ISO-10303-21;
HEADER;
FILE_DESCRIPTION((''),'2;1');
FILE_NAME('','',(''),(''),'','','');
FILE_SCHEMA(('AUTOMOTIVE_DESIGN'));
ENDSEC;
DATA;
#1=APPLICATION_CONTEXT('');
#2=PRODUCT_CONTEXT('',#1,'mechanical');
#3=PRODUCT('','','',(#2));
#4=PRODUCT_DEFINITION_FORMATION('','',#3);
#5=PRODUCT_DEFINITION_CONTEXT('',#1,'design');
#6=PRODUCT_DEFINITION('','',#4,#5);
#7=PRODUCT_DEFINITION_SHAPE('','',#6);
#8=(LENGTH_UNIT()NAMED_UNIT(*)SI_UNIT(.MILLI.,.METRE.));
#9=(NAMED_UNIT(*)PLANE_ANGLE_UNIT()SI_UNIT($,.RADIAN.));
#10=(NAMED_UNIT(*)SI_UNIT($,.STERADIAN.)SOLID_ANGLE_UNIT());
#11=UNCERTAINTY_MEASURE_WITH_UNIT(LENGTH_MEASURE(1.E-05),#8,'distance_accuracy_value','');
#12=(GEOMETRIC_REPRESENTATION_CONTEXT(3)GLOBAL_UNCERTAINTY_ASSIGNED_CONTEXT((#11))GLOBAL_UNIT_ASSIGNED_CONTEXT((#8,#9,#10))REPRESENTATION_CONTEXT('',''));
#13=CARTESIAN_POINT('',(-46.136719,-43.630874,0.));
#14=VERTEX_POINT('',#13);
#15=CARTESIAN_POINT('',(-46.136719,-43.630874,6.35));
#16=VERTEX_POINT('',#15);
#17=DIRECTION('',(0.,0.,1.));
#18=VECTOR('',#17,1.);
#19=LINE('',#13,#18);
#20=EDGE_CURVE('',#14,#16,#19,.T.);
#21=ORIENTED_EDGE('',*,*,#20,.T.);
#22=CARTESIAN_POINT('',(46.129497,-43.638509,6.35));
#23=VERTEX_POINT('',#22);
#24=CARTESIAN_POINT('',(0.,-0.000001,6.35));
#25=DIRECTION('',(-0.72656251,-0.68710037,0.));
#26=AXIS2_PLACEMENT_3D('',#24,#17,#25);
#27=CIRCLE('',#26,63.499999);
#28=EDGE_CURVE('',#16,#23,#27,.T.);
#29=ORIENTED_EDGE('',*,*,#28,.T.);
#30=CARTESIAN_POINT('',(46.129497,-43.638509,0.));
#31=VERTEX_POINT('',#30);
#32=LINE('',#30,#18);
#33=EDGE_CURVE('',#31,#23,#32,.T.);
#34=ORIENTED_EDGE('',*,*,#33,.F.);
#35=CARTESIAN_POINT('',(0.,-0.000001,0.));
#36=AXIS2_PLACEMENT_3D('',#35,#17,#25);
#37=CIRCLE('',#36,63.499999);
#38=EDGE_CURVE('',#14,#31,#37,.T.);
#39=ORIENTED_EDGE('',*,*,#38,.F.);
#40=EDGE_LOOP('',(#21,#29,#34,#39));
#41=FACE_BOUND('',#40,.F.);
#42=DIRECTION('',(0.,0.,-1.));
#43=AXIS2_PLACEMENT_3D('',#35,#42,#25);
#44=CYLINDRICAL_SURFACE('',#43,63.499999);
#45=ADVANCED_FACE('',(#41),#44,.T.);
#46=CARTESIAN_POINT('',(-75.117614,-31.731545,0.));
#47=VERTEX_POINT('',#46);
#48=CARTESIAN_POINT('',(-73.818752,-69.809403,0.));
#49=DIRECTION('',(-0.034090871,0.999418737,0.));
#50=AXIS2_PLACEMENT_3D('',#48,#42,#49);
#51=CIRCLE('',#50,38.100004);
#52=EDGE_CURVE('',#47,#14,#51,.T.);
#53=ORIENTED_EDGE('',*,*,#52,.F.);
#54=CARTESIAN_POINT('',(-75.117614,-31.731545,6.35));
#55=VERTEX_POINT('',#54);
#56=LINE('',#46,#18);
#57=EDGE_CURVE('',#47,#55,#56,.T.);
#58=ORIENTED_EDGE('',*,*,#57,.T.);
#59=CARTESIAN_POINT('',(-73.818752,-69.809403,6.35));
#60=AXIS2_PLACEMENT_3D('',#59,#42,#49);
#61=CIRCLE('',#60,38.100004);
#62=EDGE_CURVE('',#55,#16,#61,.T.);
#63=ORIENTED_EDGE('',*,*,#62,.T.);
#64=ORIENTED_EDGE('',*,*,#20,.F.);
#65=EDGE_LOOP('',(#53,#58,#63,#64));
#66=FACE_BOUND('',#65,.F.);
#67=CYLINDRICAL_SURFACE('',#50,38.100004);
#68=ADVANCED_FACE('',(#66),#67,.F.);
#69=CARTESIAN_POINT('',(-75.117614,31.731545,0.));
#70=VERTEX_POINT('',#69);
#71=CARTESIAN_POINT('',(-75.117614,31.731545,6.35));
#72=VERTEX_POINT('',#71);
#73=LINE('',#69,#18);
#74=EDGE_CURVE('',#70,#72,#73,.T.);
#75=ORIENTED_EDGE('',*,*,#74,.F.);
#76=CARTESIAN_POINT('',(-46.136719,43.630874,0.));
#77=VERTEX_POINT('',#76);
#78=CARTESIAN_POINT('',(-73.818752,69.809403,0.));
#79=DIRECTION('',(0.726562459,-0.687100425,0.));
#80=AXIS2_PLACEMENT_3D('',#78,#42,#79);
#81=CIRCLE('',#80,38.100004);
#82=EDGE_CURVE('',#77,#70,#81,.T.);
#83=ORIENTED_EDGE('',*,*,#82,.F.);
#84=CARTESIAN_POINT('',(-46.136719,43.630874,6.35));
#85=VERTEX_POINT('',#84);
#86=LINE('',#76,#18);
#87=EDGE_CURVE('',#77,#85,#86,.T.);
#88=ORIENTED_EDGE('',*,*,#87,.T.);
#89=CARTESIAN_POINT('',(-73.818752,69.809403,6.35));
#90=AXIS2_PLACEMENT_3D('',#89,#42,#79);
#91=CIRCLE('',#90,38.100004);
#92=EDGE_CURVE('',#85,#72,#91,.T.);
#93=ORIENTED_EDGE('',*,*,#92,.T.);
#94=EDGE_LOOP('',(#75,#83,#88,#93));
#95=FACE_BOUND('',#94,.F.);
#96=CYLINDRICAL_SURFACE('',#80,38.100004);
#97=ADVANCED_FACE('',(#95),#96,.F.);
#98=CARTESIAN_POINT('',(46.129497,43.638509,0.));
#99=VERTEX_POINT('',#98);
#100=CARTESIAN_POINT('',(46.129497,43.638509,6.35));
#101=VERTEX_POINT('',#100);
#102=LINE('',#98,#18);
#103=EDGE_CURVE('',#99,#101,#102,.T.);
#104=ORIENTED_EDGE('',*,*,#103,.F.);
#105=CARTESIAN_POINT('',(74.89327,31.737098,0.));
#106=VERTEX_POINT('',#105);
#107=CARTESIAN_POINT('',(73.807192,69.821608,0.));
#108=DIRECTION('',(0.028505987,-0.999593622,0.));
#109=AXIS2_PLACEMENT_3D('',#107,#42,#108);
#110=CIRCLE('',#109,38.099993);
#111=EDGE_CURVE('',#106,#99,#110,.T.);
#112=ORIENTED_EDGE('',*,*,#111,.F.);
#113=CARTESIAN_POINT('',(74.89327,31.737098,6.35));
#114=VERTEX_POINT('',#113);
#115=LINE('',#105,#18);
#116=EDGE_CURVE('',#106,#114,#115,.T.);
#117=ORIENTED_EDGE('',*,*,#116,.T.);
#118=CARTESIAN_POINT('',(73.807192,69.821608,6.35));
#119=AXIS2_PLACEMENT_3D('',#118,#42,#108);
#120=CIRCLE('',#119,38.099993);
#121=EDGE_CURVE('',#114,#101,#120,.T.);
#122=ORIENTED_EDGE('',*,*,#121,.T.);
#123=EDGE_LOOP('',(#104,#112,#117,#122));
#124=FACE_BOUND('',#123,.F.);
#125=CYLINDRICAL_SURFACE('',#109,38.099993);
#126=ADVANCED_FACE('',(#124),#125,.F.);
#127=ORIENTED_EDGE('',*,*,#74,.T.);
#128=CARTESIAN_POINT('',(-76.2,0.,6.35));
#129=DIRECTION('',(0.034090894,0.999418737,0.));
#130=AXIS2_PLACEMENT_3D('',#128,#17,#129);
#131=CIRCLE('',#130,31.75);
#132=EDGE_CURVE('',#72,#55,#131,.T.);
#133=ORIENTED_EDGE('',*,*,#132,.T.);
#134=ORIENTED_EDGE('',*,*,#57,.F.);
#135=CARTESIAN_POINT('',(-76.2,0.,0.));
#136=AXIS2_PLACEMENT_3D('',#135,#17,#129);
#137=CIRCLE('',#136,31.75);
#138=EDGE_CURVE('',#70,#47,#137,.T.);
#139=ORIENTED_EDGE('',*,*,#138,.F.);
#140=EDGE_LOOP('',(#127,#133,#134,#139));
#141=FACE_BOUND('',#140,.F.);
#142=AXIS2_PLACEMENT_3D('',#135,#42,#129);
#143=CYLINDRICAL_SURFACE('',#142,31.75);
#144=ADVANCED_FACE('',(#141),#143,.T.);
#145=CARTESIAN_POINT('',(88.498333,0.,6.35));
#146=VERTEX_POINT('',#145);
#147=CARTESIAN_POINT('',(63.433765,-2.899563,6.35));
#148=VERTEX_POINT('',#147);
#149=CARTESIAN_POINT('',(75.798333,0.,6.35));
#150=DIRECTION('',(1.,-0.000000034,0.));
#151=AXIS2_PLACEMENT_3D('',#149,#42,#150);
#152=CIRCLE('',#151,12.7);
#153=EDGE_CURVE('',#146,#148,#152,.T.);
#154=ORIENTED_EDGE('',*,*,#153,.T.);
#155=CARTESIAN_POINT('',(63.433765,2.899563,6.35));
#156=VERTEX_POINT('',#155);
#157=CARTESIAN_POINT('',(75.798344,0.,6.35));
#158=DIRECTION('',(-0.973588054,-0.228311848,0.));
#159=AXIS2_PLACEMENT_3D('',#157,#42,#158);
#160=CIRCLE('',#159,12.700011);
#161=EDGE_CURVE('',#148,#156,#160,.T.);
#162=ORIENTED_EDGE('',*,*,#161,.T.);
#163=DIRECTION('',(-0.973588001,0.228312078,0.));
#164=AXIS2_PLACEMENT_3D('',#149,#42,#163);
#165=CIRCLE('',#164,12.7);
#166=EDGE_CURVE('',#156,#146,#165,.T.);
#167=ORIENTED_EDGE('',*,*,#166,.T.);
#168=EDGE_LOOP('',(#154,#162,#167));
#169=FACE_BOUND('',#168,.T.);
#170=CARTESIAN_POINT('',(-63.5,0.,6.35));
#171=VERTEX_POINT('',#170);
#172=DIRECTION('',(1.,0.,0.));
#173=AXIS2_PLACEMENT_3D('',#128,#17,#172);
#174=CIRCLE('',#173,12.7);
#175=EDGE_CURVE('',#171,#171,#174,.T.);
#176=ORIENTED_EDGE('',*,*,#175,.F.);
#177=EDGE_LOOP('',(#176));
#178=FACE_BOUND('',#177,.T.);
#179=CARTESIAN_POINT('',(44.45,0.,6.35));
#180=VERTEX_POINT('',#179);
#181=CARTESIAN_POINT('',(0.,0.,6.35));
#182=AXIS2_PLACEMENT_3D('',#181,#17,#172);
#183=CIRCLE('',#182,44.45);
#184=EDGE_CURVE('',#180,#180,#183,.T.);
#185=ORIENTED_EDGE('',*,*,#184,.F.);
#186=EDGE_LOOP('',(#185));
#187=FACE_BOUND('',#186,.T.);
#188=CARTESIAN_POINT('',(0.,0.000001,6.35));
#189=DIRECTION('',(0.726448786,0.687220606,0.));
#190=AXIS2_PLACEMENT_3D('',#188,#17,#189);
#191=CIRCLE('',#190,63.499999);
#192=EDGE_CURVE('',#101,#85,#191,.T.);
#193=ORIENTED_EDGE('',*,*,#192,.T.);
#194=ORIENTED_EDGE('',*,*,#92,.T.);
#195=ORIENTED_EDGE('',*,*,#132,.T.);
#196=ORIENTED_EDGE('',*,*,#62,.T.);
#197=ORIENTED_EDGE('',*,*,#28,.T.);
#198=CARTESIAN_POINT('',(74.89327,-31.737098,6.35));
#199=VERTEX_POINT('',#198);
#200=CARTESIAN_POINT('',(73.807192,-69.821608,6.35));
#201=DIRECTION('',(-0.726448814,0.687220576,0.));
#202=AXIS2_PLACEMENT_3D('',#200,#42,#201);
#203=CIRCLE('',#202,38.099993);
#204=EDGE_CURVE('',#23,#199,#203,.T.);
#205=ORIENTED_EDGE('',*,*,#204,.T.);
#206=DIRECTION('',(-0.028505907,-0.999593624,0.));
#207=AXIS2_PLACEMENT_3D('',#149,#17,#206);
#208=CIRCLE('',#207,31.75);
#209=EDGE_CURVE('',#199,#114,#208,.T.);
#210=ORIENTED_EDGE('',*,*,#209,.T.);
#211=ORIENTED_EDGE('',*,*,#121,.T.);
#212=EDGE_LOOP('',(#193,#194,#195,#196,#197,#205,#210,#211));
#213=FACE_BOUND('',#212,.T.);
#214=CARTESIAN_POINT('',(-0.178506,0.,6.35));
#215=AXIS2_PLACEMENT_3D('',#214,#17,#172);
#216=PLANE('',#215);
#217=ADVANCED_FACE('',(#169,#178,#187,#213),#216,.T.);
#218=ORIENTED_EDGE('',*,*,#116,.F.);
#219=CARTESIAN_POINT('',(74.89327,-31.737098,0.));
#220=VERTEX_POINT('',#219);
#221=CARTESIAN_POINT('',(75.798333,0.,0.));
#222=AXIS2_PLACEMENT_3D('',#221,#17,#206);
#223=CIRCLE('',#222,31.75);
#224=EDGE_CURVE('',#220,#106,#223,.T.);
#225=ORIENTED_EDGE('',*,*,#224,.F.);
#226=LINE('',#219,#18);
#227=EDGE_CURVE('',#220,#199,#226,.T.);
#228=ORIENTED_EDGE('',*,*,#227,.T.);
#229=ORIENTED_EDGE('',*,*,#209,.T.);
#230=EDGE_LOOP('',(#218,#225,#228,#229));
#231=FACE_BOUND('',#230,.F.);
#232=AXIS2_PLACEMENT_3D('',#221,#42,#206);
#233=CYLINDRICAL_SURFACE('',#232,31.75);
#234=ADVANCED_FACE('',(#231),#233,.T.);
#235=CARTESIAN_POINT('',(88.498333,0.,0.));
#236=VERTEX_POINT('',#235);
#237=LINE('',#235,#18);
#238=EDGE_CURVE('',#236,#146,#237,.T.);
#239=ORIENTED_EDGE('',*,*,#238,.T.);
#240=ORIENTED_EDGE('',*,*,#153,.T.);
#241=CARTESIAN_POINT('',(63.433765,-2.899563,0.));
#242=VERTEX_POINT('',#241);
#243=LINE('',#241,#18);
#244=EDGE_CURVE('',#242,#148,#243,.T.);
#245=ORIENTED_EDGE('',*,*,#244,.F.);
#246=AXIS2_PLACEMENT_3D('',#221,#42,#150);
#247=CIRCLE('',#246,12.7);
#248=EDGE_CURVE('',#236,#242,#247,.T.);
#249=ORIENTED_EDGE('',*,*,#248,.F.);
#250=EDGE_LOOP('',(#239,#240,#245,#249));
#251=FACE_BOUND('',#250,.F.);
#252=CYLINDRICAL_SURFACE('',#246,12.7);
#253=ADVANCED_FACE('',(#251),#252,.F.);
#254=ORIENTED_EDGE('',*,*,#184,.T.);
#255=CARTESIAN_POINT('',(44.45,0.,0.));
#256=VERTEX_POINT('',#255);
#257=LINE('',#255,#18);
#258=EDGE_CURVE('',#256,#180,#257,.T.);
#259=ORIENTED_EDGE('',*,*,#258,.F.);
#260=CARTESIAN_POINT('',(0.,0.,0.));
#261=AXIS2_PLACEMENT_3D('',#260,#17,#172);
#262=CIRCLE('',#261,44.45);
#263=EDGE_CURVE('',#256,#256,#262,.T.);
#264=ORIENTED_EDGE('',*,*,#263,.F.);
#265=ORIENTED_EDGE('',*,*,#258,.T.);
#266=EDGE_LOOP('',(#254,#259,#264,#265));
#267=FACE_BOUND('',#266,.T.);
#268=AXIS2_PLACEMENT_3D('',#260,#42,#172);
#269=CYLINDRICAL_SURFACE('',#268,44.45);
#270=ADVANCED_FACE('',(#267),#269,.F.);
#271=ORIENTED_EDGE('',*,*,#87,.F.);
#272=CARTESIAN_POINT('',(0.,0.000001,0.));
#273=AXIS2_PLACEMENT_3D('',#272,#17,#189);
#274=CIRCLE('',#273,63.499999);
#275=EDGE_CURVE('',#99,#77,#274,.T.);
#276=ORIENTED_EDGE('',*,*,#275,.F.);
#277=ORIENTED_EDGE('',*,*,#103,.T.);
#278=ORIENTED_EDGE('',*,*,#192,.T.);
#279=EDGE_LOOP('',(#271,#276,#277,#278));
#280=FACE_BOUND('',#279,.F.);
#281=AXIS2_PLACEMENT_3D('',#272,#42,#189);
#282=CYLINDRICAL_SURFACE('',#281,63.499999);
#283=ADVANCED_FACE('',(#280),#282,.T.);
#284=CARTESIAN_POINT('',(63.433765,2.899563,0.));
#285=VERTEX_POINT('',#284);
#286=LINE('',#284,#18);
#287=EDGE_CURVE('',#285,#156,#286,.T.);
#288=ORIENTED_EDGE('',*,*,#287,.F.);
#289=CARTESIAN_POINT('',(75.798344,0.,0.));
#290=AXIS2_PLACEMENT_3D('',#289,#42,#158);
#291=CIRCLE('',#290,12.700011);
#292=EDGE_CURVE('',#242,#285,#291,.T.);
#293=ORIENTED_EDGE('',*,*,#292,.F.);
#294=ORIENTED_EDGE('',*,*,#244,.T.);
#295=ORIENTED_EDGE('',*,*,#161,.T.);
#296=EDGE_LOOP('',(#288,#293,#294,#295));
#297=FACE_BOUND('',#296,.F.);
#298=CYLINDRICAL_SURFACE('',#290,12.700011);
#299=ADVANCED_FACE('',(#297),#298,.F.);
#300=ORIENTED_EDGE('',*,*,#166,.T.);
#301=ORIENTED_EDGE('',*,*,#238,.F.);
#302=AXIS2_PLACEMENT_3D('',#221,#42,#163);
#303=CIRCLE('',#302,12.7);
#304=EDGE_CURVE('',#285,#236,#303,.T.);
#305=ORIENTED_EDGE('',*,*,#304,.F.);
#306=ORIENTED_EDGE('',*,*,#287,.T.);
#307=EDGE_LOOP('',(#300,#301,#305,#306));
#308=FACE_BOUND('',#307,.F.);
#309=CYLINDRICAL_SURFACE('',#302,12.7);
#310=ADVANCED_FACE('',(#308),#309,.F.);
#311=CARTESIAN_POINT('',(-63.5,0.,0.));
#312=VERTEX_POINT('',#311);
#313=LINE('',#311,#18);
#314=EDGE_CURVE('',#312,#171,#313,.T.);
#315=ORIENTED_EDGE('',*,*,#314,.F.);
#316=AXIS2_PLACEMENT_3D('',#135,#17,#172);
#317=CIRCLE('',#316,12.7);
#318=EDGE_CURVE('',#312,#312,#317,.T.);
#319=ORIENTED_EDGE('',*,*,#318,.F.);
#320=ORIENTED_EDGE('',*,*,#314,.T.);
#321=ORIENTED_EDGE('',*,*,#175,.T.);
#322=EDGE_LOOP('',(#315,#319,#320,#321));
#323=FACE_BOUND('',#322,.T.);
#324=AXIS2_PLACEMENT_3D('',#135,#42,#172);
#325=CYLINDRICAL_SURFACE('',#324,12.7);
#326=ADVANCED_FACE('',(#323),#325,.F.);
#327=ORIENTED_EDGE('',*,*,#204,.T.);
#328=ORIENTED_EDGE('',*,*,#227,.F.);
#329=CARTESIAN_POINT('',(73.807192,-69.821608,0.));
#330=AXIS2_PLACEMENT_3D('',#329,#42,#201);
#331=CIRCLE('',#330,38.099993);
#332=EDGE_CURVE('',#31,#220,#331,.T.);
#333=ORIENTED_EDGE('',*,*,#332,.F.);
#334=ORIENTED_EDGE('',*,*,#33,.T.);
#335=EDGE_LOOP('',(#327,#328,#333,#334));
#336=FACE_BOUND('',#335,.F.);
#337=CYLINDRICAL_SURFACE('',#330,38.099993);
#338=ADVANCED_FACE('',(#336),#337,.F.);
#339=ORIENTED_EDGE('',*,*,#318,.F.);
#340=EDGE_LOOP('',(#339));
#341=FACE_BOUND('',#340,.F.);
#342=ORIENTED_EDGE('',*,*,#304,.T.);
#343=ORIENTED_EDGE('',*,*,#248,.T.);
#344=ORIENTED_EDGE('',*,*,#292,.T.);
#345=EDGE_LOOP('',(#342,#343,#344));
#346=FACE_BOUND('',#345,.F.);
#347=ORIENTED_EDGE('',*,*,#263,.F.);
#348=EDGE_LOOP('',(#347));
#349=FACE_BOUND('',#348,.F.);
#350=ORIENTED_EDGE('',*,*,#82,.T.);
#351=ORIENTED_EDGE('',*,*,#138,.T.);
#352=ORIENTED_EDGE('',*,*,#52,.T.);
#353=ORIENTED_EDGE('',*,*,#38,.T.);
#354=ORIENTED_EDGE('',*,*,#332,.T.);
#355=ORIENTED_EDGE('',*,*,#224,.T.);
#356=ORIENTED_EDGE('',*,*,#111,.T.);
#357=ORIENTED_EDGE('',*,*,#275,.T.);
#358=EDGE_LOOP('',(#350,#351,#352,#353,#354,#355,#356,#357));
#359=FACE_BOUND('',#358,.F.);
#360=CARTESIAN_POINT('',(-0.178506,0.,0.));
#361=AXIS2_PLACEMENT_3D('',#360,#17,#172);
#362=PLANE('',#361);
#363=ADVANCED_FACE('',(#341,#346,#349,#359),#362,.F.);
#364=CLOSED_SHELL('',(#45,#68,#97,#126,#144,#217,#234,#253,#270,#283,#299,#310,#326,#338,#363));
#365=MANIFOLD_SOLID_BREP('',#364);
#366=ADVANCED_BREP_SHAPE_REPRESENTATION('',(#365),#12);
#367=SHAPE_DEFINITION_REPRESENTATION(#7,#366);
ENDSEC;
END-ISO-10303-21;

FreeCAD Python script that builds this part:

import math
import FreeCAD as App
import Part
import Sketcher
from FreeCAD import Vector
Q = App.Units.Quantity

doc = App.newDocument("Part")
body = doc.addObject("PartDesign::Body", "Body")

# Sketch on XY plane
sketch1 = body.newObject("Sketcher::SketchObject", "Sketch")
sketch1.AttachmentSupport = (doc.getObject("XY_Plane"), [""])
sketch1.MapMode = "FlatFace"
sketch1.addGeometry(Part.ArcOfCircle(Part.Circle(Vector(-73.818752, -69.809403, 0), Vector(0, 0, 1), 38.100004), math.radians(43.401018), math.radians(91.953642)), False)
sketch1.addGeometry(Part.ArcOfCircle(Part.Circle(Vector(0, -0.000001, 0), Vector(0, 0, 1), 63.499999), math.radians(-136.598986), math.radians(-43.410496)), False)
sketch1.addGeometry(Part.ArcOfCircle(Part.Circle(Vector(73.807192, -69.821608, 0), Vector(0, 0, 1), 38.099993), math.radians(88.366506), math.radians(136.589506)), False)
sketch1.addGeometry(Part.ArcOfCircle(Part.Circle(Vector(75.798333, 0, 0), Vector(0, 0, 1), 31.75), math.radians(-91.633489), math.radians(91.633489)), False)
sketch1.addGeometry(Part.ArcOfCircle(Part.Circle(Vector(73.807192, 69.821608, 0), Vector(0, 0, 1), 38.099993), math.radians(-136.589506), math.radians(-88.366506)), False)
sketch1.addGeometry(Part.ArcOfCircle(Part.Circle(Vector(0, 0.000001, 0), Vector(0, 0, 1), 63.499999), math.radians(43.410496), math.radians(136.598986)), False)
sketch1.addGeometry(Part.ArcOfCircle(Part.Circle(Vector(-73.818752, 69.809403, 0), Vector(0, 0, 1), 38.100004), math.radians(-91.953642), math.radians(-43.401018)), False)
sketch1.addGeometry(Part.ArcOfCircle(Part.Circle(Vector(-76.2, 0, 0), Vector(0, 0, 1), 31.75), math.radians(88.046357), math.radians(271.953643)), False)
sketch1.addGeometry(Part.Circle(Vector(-76.2, 0, 0), Vector(0, 0, 1), 12.7), False)
sketch1.addGeometry(Part.Circle(Vector(0, 0, 0), Vector(0, 0, 1), 44.45), False)
sketch1.addGeometry(Part.ArcOfCircle(Part.Circle(Vector(75.798344, 0, 0), Vector(0, 0, 1), 12.700011), math.radians(166.802296), math.radians(193.197704)), False)
sketch1.addGeometry(Part.ArcOfCircle(Part.Circle(Vector(75.798333, 0, 0), Vector(0, 0, 1), 12.7), math.radians(0.000002), math.radians(166.802283)), False)
sketch1.addGeometry(Part.ArcOfCircle(Part.Circle(Vector(75.798333, 0, 0), Vector(0, 0, 1), 12.7), math.radians(-166.802283), math.radians(-0.000002)), False)
sketch1.addConstraint(Sketcher.Constraint("Coincident", 0, 1, 1, 1))
sketch1.addConstraint(Sketcher.Constraint("Coincident", 1, 2, 2, 2))
sketch1.addConstraint(Sketcher.Constraint("Coincident", 2, 1, 3, 1))
sketch1.addConstraint(Sketcher.Constraint("Coincident", 3, 2, 4, 2))
sketch1.addConstraint(Sketcher.Constraint("Coincident", 4, 1, 5, 1))
sketch1.addConstraint(Sketcher.Constraint("Coincident", 5, 2, 6, 2))
sketch1.addConstraint(Sketcher.Constraint("Coincident", 6, 1, 7, 1))
sketch1.addConstraint(Sketcher.Constraint("Coincident", 7, 2, 0, 2))
sketch1.addConstraint(Sketcher.Constraint("Coincident", 10, 1, 11, 2))
sketch1.addConstraint(Sketcher.Constraint("Coincident", 11, 1, 12, 2))
sketch1.addConstraint(Sketcher.Constraint("Coincident", 12, 1, 10, 2))
sketch1.addConstraint(Sketcher.Constraint("Coincident", 1, 3, -1, 1))
sketch1.addConstraint(Sketcher.Constraint("Coincident", 5, 3, -1, 1))
sketch1.addConstraint(Sketcher.Constraint("Coincident", 9, 3, -1, 1))
sketch1.addConstraint(Sketcher.Constraint("Coincident", 8, 3, 7, 3))
sketch1.addConstraint(Sketcher.Constraint("Coincident", 11, 3, 3, 3))
sketch1.addConstraint(Sketcher.Constraint("Coincident", 12, 3, 3, 3))
sketch1.addConstraint(Sketcher.Constraint("PointOnObject", 3, 3, -1))
sketch1.addConstraint(Sketcher.Constraint("PointOnObject", 7, 3, -1))
sketch1.addConstraint(Sketcher.Constraint("PointOnObject", 11, 1, -1))
sketch1.addConstraint(Sketcher.Constraint("Diameter", 8, Q("1 in")))
sketch1.addConstraint(Sketcher.Constraint("Diameter", 9, Q("3.5 in")))
sketch1.addConstraint(Sketcher.Constraint("Radius", 0, Q("1.5000002 in")))
sketch1.addConstraint(Sketcher.Constraint("Radius", 1, Q("2.5 in")))
sketch1.addConstraint(Sketcher.Constraint("Radius", 5, Q("2.5 in")))
sketch1.addConstraint(Sketcher.Constraint("Radius", 6, Q("1.5000002 in")))
sketch1.addConstraint(Sketcher.Constraint("Radius", 11, Q("0.5 in")))
sketch1.addConstraint(Sketcher.Constraint("Radius", 3, Q("1.25 in")))
sketch1.addConstraint(Sketcher.Constraint("Radius", 7, Q("1.25 in")))
sketch1.addConstraint(Sketcher.Constraint("DistanceX", 7, 3, -1, 1, Q("3 in")))
sketch1.addConstraint(Sketcher.Constraint("Radius", 10, 12.700011))
sketch1.addConstraint(Sketcher.Constraint("Radius", 2, 38.099993))
sketch1.addConstraint(Sketcher.Constraint("Radius", 4, 38.099993))
sketch1.addConstraint(Sketcher.Constraint("DistanceY", 2, 1, -1, 1, 31.737098))
sketch1.addConstraint(Sketcher.Constraint("DistanceY", 2, 3, 1, 2, 26.183099))
sketch1.addConstraint(Sketcher.Constraint("DistanceY", 11, 3, 3, 2, 31.737098))
sketch1.addConstraint(Sketcher.Constraint("DistanceY", 4, 1, 4, 3, 26.183099))
sketch1.addConstraint(Sketcher.Constraint("DistanceY", 2, 3, -1, 1, 69.821608))
sketch1.addConstraint(Sketcher.Constraint("DistanceX", 0, 1, -1, 1, 46.136719))
sketch1.addConstraint(Sketcher.Constraint("DistanceX", 5, 2, -1, 1, 46.136719))
sketch1.addConstraint(Sketcher.Constraint("DistanceY", 6, 1, 5, 2, 11.899329))
sketch1.addConstraint(Sketcher.Constraint("DistanceY", 0, 1, 7, 2, 11.899329))
sketch1.addConstraint(Sketcher.Constraint("DistanceX", 10, 1, 10, 3, 12.364579))
sketch1.addConstraint(Sketcher.Constraint("DistanceX", 12, 1, 10, 3, 12.364579))
pad1 = body.newObject("PartDesign::Pad", "Pad")
pad1.Profile = sketch1
pad1.Length = Q("0.25 in")

doc.recompute()
